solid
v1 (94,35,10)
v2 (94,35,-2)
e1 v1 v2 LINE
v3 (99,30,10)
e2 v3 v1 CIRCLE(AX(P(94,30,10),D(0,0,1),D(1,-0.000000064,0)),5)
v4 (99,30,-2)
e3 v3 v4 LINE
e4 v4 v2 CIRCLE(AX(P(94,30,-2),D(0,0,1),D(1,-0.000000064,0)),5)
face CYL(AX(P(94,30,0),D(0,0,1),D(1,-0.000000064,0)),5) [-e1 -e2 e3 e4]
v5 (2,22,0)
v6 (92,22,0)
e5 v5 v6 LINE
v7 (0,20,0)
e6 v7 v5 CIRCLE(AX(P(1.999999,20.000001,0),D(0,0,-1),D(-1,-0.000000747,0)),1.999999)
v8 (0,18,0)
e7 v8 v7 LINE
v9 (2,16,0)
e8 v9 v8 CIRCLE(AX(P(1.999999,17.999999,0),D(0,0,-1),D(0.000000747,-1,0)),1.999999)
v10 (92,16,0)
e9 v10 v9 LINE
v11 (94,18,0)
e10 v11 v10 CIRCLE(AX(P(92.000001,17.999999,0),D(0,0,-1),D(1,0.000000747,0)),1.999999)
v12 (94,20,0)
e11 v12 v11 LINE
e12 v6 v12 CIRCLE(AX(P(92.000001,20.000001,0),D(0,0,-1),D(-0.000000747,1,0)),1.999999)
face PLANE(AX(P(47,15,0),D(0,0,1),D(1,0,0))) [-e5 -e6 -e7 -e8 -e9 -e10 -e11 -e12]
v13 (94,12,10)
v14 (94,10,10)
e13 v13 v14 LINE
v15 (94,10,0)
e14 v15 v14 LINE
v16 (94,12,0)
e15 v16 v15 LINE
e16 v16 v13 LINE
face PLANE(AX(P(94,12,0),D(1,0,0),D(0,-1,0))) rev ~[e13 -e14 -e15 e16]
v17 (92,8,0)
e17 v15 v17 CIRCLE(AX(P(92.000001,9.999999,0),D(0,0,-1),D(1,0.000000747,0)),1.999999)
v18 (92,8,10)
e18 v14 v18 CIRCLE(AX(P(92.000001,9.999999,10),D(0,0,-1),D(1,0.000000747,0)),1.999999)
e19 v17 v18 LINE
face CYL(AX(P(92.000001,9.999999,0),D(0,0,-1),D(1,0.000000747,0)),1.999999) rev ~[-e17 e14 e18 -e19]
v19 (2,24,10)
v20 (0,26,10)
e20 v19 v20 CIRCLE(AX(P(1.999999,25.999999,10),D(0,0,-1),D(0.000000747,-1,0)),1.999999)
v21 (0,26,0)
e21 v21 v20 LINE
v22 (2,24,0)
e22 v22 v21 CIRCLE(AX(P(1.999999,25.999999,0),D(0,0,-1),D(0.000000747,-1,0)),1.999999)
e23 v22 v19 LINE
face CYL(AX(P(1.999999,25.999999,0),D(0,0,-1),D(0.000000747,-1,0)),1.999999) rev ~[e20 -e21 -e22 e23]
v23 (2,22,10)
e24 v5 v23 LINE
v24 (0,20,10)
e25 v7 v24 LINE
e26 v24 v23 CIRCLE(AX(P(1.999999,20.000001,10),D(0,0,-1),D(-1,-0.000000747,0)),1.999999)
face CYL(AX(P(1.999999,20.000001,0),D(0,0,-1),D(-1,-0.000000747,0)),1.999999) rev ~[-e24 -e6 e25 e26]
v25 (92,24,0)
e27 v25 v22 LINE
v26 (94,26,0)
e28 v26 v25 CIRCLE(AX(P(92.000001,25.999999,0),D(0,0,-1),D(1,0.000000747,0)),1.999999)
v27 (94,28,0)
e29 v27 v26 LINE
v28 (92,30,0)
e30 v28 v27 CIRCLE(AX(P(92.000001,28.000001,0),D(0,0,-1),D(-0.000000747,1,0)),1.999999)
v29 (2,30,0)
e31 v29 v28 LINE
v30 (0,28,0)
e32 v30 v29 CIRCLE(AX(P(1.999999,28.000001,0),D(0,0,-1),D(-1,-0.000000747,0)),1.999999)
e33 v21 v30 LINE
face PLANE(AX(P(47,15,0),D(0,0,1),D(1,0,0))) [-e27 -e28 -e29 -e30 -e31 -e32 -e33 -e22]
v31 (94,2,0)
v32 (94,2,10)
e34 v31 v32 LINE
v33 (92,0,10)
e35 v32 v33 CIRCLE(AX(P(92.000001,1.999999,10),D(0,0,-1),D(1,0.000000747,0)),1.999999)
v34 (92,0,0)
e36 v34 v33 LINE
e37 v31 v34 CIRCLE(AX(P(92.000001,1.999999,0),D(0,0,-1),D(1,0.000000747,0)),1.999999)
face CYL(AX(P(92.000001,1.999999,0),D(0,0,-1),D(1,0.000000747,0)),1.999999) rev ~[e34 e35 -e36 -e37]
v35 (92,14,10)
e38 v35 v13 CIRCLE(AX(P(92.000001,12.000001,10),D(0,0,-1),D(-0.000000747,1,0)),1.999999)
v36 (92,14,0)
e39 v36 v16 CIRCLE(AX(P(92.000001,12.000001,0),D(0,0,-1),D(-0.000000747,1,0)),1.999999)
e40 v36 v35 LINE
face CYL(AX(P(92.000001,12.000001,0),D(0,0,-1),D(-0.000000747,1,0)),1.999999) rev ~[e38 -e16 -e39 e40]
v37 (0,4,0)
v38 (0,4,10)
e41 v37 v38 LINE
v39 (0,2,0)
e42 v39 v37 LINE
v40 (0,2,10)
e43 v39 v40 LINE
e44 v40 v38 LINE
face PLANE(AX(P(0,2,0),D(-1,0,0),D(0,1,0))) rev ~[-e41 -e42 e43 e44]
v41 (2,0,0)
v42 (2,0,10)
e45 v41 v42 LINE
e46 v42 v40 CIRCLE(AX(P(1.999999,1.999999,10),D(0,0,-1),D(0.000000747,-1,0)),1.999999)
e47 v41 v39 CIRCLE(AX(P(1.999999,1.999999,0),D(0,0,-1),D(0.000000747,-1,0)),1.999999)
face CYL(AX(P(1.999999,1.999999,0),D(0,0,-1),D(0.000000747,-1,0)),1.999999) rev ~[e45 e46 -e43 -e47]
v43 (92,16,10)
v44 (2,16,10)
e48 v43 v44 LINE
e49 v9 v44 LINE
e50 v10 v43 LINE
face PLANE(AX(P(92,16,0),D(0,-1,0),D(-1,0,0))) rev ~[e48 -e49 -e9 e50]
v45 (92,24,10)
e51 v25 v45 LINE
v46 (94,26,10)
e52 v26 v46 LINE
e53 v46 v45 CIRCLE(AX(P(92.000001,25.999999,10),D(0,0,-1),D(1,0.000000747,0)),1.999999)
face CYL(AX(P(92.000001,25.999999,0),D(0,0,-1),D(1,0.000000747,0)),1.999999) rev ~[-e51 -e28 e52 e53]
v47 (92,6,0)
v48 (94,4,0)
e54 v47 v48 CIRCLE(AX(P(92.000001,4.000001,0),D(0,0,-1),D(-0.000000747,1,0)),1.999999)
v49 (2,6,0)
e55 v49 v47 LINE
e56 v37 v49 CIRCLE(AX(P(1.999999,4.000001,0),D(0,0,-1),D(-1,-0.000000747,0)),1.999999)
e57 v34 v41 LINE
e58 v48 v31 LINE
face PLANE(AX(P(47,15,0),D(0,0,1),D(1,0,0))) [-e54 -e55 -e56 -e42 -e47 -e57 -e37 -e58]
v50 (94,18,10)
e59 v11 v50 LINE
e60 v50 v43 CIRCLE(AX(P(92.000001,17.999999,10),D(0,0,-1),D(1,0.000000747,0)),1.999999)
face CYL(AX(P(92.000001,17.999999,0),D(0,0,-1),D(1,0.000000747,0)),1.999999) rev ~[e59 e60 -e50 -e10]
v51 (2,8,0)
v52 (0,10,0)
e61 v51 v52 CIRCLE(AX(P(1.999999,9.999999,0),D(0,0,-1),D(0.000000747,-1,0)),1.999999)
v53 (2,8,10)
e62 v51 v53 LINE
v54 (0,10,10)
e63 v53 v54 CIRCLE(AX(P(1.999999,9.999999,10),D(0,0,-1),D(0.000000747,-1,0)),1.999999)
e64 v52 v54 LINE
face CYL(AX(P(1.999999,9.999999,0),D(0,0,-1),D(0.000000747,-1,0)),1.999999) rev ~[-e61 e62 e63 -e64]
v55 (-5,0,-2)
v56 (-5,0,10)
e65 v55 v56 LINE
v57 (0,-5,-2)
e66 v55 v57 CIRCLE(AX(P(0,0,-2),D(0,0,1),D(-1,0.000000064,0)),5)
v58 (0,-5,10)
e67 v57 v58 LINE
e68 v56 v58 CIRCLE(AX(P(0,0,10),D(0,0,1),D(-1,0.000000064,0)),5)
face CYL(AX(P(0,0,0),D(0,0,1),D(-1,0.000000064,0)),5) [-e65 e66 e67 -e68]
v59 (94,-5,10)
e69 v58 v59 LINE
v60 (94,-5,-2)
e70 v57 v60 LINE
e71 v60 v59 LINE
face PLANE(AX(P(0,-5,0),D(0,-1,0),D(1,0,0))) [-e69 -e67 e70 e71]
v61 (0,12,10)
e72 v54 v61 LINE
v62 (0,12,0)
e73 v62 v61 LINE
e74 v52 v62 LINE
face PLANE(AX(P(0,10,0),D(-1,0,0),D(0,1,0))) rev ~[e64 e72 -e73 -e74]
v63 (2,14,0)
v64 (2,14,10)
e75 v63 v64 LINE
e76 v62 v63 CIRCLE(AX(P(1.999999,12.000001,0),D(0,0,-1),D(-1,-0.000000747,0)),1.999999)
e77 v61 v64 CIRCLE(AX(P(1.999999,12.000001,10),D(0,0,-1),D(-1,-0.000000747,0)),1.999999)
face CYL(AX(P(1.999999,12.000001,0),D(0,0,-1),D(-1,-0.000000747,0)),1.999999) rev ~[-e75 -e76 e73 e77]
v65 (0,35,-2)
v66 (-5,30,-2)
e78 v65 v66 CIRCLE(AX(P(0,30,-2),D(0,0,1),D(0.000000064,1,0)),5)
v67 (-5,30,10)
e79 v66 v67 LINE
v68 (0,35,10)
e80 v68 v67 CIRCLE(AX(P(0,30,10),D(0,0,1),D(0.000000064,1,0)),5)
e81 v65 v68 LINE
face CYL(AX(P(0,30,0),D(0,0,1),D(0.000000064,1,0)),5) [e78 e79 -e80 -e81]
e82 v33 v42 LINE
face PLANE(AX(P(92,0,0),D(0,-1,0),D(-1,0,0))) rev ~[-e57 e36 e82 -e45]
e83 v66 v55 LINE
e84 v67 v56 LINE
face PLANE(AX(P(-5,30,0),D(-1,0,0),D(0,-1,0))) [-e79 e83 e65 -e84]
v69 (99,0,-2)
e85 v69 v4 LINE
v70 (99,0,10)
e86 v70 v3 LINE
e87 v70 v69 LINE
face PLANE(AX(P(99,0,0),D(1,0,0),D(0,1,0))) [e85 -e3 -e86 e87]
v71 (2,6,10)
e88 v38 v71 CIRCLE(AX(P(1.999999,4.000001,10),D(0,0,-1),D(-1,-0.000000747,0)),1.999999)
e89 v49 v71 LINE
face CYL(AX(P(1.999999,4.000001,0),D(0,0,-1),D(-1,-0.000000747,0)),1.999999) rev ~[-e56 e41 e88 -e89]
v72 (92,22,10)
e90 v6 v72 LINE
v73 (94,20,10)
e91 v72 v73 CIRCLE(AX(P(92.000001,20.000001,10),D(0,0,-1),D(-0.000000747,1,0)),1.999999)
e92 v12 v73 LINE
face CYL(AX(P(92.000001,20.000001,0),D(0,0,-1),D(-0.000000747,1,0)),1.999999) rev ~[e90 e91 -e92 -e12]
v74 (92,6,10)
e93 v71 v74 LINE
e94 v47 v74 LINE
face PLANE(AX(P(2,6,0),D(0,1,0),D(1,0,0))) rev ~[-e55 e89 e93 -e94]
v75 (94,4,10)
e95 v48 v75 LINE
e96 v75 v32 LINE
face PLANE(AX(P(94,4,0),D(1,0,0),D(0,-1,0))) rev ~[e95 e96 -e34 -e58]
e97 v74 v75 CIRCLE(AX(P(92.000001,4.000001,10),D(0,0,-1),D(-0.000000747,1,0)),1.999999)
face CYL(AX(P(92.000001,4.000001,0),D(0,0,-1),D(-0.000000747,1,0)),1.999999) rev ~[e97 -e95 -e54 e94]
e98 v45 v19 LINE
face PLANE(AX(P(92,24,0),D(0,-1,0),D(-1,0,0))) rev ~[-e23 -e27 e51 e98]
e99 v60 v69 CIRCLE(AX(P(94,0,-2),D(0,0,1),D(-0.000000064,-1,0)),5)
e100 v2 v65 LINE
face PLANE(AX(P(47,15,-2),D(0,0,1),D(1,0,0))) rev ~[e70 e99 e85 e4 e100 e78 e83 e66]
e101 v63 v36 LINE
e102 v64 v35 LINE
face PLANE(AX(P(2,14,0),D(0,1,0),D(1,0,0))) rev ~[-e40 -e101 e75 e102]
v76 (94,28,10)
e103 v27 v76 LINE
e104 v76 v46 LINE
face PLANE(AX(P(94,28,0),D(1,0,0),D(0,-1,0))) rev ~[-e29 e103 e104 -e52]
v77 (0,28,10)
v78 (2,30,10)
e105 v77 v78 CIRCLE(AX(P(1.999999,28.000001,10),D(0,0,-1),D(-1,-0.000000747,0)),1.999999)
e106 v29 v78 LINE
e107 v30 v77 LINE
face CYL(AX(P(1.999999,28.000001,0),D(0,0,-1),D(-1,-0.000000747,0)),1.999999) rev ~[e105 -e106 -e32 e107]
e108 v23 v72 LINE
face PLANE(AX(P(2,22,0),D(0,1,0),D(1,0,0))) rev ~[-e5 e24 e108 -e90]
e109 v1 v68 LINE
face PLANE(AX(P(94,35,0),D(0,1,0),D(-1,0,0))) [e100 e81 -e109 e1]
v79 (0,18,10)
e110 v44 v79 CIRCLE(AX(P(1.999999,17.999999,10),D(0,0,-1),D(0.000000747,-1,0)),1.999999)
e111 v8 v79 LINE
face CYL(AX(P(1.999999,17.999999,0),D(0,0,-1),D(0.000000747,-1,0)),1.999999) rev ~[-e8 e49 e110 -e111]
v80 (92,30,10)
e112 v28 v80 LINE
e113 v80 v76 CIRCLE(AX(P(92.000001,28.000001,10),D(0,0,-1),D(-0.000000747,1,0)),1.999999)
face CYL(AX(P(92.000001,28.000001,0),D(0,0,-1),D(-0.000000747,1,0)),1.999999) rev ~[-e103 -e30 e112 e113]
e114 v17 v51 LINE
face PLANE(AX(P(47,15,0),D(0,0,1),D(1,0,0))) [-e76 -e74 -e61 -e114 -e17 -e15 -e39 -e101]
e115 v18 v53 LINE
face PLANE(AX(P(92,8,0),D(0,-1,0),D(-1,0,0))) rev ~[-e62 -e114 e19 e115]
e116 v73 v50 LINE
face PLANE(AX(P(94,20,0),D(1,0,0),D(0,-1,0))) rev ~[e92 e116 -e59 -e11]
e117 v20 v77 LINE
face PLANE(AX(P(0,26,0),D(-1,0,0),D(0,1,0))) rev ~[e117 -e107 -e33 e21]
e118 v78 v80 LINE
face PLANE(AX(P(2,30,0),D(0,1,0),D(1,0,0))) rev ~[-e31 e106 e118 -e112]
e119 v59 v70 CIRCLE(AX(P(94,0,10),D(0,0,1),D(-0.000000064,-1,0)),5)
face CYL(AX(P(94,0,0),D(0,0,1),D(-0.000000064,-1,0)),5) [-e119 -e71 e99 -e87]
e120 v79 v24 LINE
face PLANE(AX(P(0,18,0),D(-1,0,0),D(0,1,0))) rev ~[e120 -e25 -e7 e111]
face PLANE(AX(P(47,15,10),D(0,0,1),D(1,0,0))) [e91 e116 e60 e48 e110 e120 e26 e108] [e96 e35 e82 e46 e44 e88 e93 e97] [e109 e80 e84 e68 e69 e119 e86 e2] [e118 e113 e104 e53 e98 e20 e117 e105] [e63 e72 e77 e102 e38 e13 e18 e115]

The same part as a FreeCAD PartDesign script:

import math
import FreeCAD as App
import Part
import Sketcher
Q = App.Units.Quantity

doc = App.newDocument("Part")
body = doc.addObject("PartDesign::Body", "Body")

sketch1 = body.newObject("Sketcher::SketchObject", "Sketch")
sketch1.AttachmentSupport = (doc.getObject("XY_Plane"), [""])
sketch1.MapMode = "FlatFace"
sketch1.addGeometry([
    Part.LineSegment(App.Vector(94, 35, 0), App.Vector(0, 35, 0)),
    Part.ArcOfCircle(Part.Circle(App.Vector(0, 30, 0), App.Vector(0, 0, 1), 5), math.radians(90), math.radians(180)),
    Part.LineSegment(App.Vector(-5, 30, 0), App.Vector(-5, 0, 0)),
    Part.ArcOfCircle(Part.Circle(App.Vector(0, 0, 0), App.Vector(0, 0, 1), 5), math.radians(180), math.radians(270)),
    Part.LineSegment(App.Vector(0, -5, 0), App.Vector(94, -5, 0)),
    Part.ArcOfCircle(Part.Circle(App.Vector(94, 0, 0), App.Vector(0, 0, 1), 5), math.radians(-90), math.radians(0)),
    Part.LineSegment(App.Vector(99, 0, 0), App.Vector(99, 30, 0)),
    Part.ArcOfCircle(Part.Circle(App.Vector(94, 30, 0), App.Vector(0, 0, 1), 5), math.radians(0), math.radians(90)),
    Part.LineSegment(App.Vector(0, 2, 0), App.Vector(0, 4, 0)),
    Part.ArcOfCircle(Part.Circle(App.Vector(2, 4, 0), App.Vector(0, 0, 1), 2), math.radians(90), math.radians(180)),
    Part.LineSegment(App.Vector(2, 6, 0), App.Vector(92, 6, 0)),
    Part.ArcOfCircle(Part.Circle(App.Vector(92, 4, 0), App.Vector(0, 0, 1), 2), math.radians(0), math.radians(90)),
    Part.LineSegment(App.Vector(94, 4, 0), App.Vector(94, 2, 0)),
    Part.ArcOfCircle(Part.Circle(App.Vector(92, 2, 0), App.Vector(0, 0, 1), 2), math.radians(-90), math.radians(0)),
    Part.LineSegment(App.Vector(92, 0, 0), App.Vector(2, 0, 0)),
    Part.ArcOfCircle(Part.Circle(App.Vector(2, 2, 0), App.Vector(0, 0, 1), 2), math.radians(180), math.radians(270)),
    Part.LineSegment(App.Vector(0, 10, 0), App.Vector(0, 12, 0)),
    Part.ArcOfCircle(Part.Circle(App.Vector(2, 12, 0), App.Vector(0, 0, 1), 2), math.radians(90), math.radians(180)),
    Part.LineSegment(App.Vector(2, 14, 0), App.Vector(92, 14, 0)),
    Part.ArcOfCircle(Part.Circle(App.Vector(92, 12, 0), App.Vector(0, 0, 1), 2), math.radians(0), math.radians(90)),
    Part.LineSegment(App.Vector(94, 12, 0), App.Vector(94, 10, 0)),
    Part.ArcOfCircle(Part.Circle(App.Vector(92, 10, 0), App.Vector(0, 0, 1), 2), math.radians(-90), math.radians(0)),
    Part.LineSegment(App.Vector(92, 8, 0), App.Vector(2, 8, 0)),
    Part.ArcOfCircle(Part.Circle(App.Vector(2, 10, 0), App.Vector(0, 0, 1), 2), math.radians(180), math.radians(270)),
    Part.LineSegment(App.Vector(0, 18, 0), App.Vector(0, 20, 0)),
    Part.ArcOfCircle(Part.Circle(App.Vector(2, 20, 0), App.Vector(0, 0, 1), 2), math.radians(90), math.radians(180)),
    Part.LineSegment(App.Vector(2, 22, 0), App.Vector(92, 22, 0)),
    Part.ArcOfCircle(Part.Circle(App.Vector(92, 20, 0), App.Vector(0, 0, 1), 2), math.radians(0), math.radians(90)),
    Part.LineSegment(App.Vector(94, 20, 0), App.Vector(94, 18, 0)),
    Part.ArcOfCircle(Part.Circle(App.Vector(92, 18, 0), App.Vector(0, 0, 1), 2), math.radians(-90), math.radians(0)),
    Part.LineSegment(App.Vector(92, 16, 0), App.Vector(2, 16, 0)),
    Part.ArcOfCircle(Part.Circle(App.Vector(2, 18, 0), App.Vector(0, 0, 1), 2), math.radians(180), math.radians(270)),
    Part.LineSegment(App.Vector(0, 26, 0), App.Vector(0, 28, 0)),
    Part.ArcOfCircle(Part.Circle(App.Vector(2, 28, 0), App.Vector(0, 0, 1), 2), math.radians(90), math.radians(180)),
    Part.LineSegment(App.Vector(2, 30, 0), App.Vector(92, 30, 0)),
    Part.ArcOfCircle(Part.Circle(App.Vector(92, 28, 0), App.Vector(0, 0, 1), 2), math.radians(0), math.radians(90)),
    Part.LineSegment(App.Vector(94, 28, 0), App.Vector(94, 26, 0)),
    Part.ArcOfCircle(Part.Circle(App.Vector(92, 26, 0), App.Vector(0, 0, 1), 2), math.radians(-90), math.radians(0)),
    Part.LineSegment(App.Vector(92, 24, 0), App.Vector(2, 24, 0)),
    Part.ArcOfCircle(Part.Circle(App.Vector(2, 26, 0), App.Vector(0, 0, 1), 2), math.radians(180), math.radians(270)),
], False)
sketch1.addConstraint([
    Sketcher.Constraint("Tangent", 0, 2, 1, 1),
    Sketcher.Constraint("Tangent", 1, 2, 2, 1),
    Sketcher.Constraint("Tangent", 2, 2, 3, 1),
    Sketcher.Constraint("Tangent", 3, 2, 4, 1),
    Sketcher.Constraint("Tangent", 4, 2, 5, 1),
    Sketcher.Constraint("Tangent", 5, 2, 6, 1),
    Sketcher.Constraint("Tangent", 6, 2, 7, 1),
    Sketcher.Constraint("Tangent", 7, 2, 0, 1),
    Sketcher.Constraint("Tangent", 8, 2, 9, 2),
    Sketcher.Constraint("Tangent", 9, 1, 10, 1),
    Sketcher.Constraint("Tangent", 10, 2, 11, 2),
    Sketcher.Constraint("Tangent", 11, 1, 12, 1),
    Sketcher.Constraint("Tangent", 12, 2, 13, 2),
    Sketcher.Constraint("Tangent", 13, 1, 14, 1),
    Sketcher.Constraint("Tangent", 14, 2, 15, 2),
    Sketcher.Constraint("Tangent", 15, 1, 8, 1),
    Sketcher.Constraint("Tangent", 16, 2, 17, 2),
    Sketcher.Constraint("Tangent", 17, 1, 18, 1),
    Sketcher.Constraint("Tangent", 18, 2, 19, 2),
    Sketcher.Constraint("Tangent", 19, 1, 20, 1),
    Sketcher.Constraint("Tangent", 20, 2, 21, 2),
    Sketcher.Constraint("Tangent", 21, 1, 22, 1),
    Sketcher.Constraint("Tangent", 22, 2, 23, 2),
    Sketcher.Constraint("Tangent", 23, 1, 16, 1),
    Sketcher.Constraint("Tangent", 24, 2, 25, 2),
    Sketcher.Constraint("Tangent", 25, 1, 26, 1),
    Sketcher.Constraint("Tangent", 26, 2, 27, 2),
    Sketcher.Constraint("Tangent", 27, 1, 28, 1),
    Sketcher.Constraint("Tangent", 28, 2, 29, 2),
    Sketcher.Constraint("Tangent", 29, 1, 30, 1),
    Sketcher.Constraint("Tangent", 30, 2, 31, 2),
    Sketcher.Constraint("Tangent", 31, 1, 24, 1),
    Sketcher.Constraint("Tangent", 32, 2, 33, 2),
    Sketcher.Constraint("Tangent", 33, 1, 34, 1),
    Sketcher.Constraint("Tangent", 34, 2, 35, 2),
    Sketcher.Constraint("Tangent", 35, 1, 36, 1),
    Sketcher.Constraint("Tangent", 36, 2, 37, 2),
    Sketcher.Constraint("Tangent", 37, 1, 38, 1),
    Sketcher.Constraint("Tangent", 38, 2, 39, 2),
    Sketcher.Constraint("Tangent", 39, 1, 32, 1),
    Sketcher.Constraint("Horizontal", 0),
    Sketcher.Constraint("Vertical", 2),
    Sketcher.Constraint("Horizontal", 4),
    Sketcher.Constraint("Vertical", 6),
    Sketcher.Constraint("Vertical", 8),
    Sketcher.Constraint("Horizontal", 10),
    Sketcher.Constraint("Vertical", 12),
    Sketcher.Constraint("Horizontal", 14),
    Sketcher.Constraint("Vertical", 16),
    Sketcher.Constraint("Horizontal", 18),
    Sketcher.Constraint("Vertical", 20),
    Sketcher.Constraint("Horizontal", 22),
    Sketcher.Constraint("Vertical", 24),
    Sketcher.Constraint("Horizontal", 26),
    Sketcher.Constraint("Vertical", 28),
    Sketcher.Constraint("Horizontal", 30),
    Sketcher.Constraint("Vertical", 32),
    Sketcher.Constraint("Horizontal", 34),
    Sketcher.Constraint("Vertical", 36),
    Sketcher.Constraint("Horizontal", 38),
    Sketcher.Constraint("Coincident", 3, 3, -1, 1),
    Sketcher.Constraint("Equal", 1, 3),
    Sketcher.Constraint("Equal", 3, 5),
    Sketcher.Constraint("Equal", 5, 7),
    Sketcher.Constraint("Equal", 9, 11),
    Sketcher.Constraint("Equal", 11, 13),
    Sketcher.Constraint("Equal", 13, 15),
    Sketcher.Constraint("Equal", 15, 17),
    Sketcher.Constraint("Equal", 17, 19),
    Sketcher.Constraint("Equal", 19, 21),
    Sketcher.Constraint("Equal", 21, 23),
    Sketcher.Constraint("Equal", 23, 25),
    Sketcher.Constraint("Equal", 25, 27),
    Sketcher.Constraint("Equal", 27, 29),
    Sketcher.Constraint("Equal", 29, 31),
    Sketcher.Constraint("Equal", 31, 33),
    Sketcher.Constraint("Equal", 33, 35),
    Sketcher.Constraint("Equal", 35, 37),
    Sketcher.Constraint("Equal", 37, 39),
    Sketcher.Constraint("PointOnObject", 8, 2, -2),
    Sketcher.Constraint("PointOnObject", 13, 1, -1),
    Sketcher.Constraint("PointOnObject", 16, 2, -2),
    Sketcher.Constraint("PointOnObject", 24, 2, -2),
    Sketcher.Constraint("PointOnObject", 32, 2, -2),
    Sketcher.Constraint("Horizontal", 6, 2, 33, 1),
    Sketcher.Constraint("Vertical", 13, 3, 19, 3),
    Sketcher.Constraint("Vertical", 21, 3, 27, 3),
    Sketcher.Constraint("Vertical", 29, 3, 35, 3),
    Sketcher.Constraint("Vertical", 7, 2, 11, 1),
    Sketcher.Constraint("Equal", 12, 16),
    Sketcher.Constraint("Equal", 20, 24),
    Sketcher.Constraint("Equal", 28, 32),
    Sketcher.Constraint("Radius", 1, Q("5 mm")),
    Sketcher.Constraint("Radius", 9, Q("1.999999 mm")),
    Sketcher.Constraint("DistanceX", 0, 2, 0, 1, Q("94 mm")),
    Sketcher.Constraint("DistanceY", 2, 2, 2, 1, Q("30 mm")),
    Sketcher.Constraint("DistanceY", 8, 1, 8, 2, Q("2 mm")),
    Sketcher.Constraint("DistanceY", -1, 1, 17, 3, Q("12.000001 mm")),
    Sketcher.Constraint("DistanceY", -1, 1, 25, 3, Q("20.000001 mm")),
])
pad1 = body.newObject("PartDesign::Pad", "Pad")
pad1.Profile = sketch1
pad1.Length = 10

sketch2 = body.newObject("Sketcher::SketchObject", "Sketch001")
sketch2.AttachmentSupport = (doc.getObject("XY_Plane"), [""])
sketch2.MapMode = "FlatFace"
sketch2.addGeometry([
    Part.LineSegment(App.Vector(94, 35, 0), App.Vector(0, 35, 0)),
    Part.ArcOfCircle(Part.Circle(App.Vector(0, 30, 0), App.Vector(0, 0, 1), 5), math.radians(90), math.radians(180)),
    Part.LineSegment(App.Vector(-5, 30, 0), App.Vector(-5, 0, 0)),
    Part.ArcOfCircle(Part.Circle(App.Vector(0, 0, 0), App.Vector(0, 0, 1), 5), math.radians(180), math.radians(270)),
    Part.LineSegment(App.Vector(0, -5, 0), App.Vector(94, -5, 0)),
    Part.ArcOfCircle(Part.Circle(App.Vector(94, 0, 0), App.Vector(0, 0, 1), 5), math.radians(-90), math.radians(0)),
    Part.LineSegment(App.Vector(99, 0, 0), App.Vector(99, 30, 0)),
    Part.ArcOfCircle(Part.Circle(App.Vector(94, 30, 0), App.Vector(0, 0, 1), 5), math.radians(0), math.radians(90)),
], False)
sketch2.addConstraint([
    Sketcher.Constraint("Tangent", 0, 2, 1, 1),
    Sketcher.Constraint("Tangent", 1, 2, 2, 1),
    Sketcher.Constraint("Tangent", 2, 2, 3, 1),
    Sketcher.Constraint("Tangent", 3, 2, 4, 1),
    Sketcher.Constraint("Tangent", 4, 2, 5, 1),
    Sketcher.Constraint("Tangent", 5, 2, 6, 1),
    Sketcher.Constraint("Tangent", 6, 2, 7, 1),
    Sketcher.Constraint("Tangent", 7, 2, 0, 1),
    Sketcher.Constraint("Horizontal", 0),
    Sketcher.Constraint("Vertical", 2),
    Sketcher.Constraint("Horizontal", 4),
    Sketcher.Constraint("Vertical", 6),
    Sketcher.Constraint("Coincident", 3, 3, -1, 1),
    Sketcher.Constraint("Equal", 1, 3),
    Sketcher.Constraint("Equal", 3, 5),
    Sketcher.Constraint("Equal", 5, 7),
    Sketcher.Constraint("Radius", 1, Q("5 mm")),
    Sketcher.Constraint("DistanceX", 0, 2, 0, 1, Q("94 mm")),
    Sketcher.Constraint("DistanceY", 2, 2, 2, 1, Q("30 mm")),
])
pad2 = body.newObject("PartDesign::Pad", "Pad001")
pad2.Profile = sketch2
pad2.Length = 2
pad2.Reversed = True

doc.recompute()
